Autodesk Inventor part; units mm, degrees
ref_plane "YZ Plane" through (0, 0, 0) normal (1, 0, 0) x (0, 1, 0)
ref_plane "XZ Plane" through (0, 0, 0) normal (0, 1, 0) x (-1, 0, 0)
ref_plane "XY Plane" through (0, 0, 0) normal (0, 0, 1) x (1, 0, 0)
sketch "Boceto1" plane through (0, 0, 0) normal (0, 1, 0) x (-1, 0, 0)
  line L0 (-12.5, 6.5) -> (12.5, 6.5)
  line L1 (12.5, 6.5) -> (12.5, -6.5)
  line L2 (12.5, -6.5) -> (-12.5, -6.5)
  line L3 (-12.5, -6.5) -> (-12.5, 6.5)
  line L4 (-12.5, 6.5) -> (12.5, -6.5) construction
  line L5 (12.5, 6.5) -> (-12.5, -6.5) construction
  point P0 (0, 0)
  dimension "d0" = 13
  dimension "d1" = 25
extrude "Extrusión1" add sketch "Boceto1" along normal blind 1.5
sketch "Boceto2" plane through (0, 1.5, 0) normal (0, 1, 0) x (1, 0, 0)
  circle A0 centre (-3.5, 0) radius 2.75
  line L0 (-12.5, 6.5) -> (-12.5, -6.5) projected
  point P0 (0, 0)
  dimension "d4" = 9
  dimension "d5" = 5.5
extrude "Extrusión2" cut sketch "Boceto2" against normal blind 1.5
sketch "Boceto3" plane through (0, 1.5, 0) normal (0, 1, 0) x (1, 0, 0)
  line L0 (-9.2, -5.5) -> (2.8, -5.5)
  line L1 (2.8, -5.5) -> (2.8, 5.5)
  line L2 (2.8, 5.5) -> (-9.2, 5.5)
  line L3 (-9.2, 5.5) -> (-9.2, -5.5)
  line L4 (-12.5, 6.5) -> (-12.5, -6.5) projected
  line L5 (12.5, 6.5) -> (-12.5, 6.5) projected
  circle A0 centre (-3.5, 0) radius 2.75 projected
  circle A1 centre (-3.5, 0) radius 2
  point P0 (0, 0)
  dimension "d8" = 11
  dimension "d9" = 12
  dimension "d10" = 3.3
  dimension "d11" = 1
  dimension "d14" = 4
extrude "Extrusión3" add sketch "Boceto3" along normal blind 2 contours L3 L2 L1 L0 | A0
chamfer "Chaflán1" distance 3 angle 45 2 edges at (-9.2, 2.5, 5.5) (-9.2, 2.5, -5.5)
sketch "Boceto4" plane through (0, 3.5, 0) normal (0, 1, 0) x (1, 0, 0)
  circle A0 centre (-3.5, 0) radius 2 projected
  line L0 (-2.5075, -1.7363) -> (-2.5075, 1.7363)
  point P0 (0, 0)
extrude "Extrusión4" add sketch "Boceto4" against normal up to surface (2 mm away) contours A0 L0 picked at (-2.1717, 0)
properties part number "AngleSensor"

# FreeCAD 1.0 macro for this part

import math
import FreeCAD as App
import Part
import Sketcher
from FreeCAD import Vector


def edges_at(feature, points):
    """Names of the edges that pass closest to the given points."""
    edges = feature.Shape.Edges
    near = lambda p: min(range(len(edges)), key=lambda i: edges[i].distToShape(Part.Vertex(*p))[0])
    return sorted({f"Edge{near(p) + 1}" for p in points})


def add_polygon(sketch, points):
    """Adds a closed chain of lines whose ends are joined by coincident constraints."""
    first, n = sketch.GeometryCount, len(points)
    for a, b in zip(points, points[1:] + points[:1]):
        sketch.addGeometry(Part.LineSegment(App.Vector(*a, 0), App.Vector(*b, 0)), False)
    for i in range(n):
        sketch.addConstraint(Sketcher.Constraint("Coincident", first + i, 2, first + (i + 1) % n, 1))

doc = App.newDocument("Part")
params = doc.addObject("Spreadsheet::Sheet", "Params")
for row, (alias, value) in enumerate([
    ("sketch1_width", "25 mm"),
    ("sketch1_height", "13 mm"),
    ("pad1_length", "1.5 mm"),
    ("sketch2_diameter", "5.5 mm"),
    ("pocket1_length", "1.5 mm"),
    ("sketch3_diameter", "4 mm"),
    ("sketch3_width", "12 mm"),
    ("sketch3_height", "11 mm"),
    ("pad2_length", "2 mm"),
    ("chamfer_size", "3 mm"),
    ("sketch4_radius", "2 mm"),
    ("pad3_length", "2 mm"),
], start=1):
    params.set(f"A{row}", alias)
    params.set(f"B{row}", "=" + value)
    params.setAlias(f"B{row}", alias)

body = doc.addObject("PartDesign::Body", "Body")

sketch1 = body.newObject("Sketcher::SketchObject", "Sketch")
sketch1.AttachmentSupport = (doc.getObject("XZ_Plane"), [""])
sketch1.MapMode = "FlatFace"
add_polygon(sketch1, [(-12.5, 6.5), (12.5, 6.5), (12.5, -6.5), (-12.5, -6.5)])
sketch1.addConstraint([
    Sketcher.Constraint("Horizontal", 0),
    Sketcher.Constraint("Vertical", 1),
    Sketcher.Constraint("Horizontal", 2),
    Sketcher.Constraint("Vertical", 3),
    Sketcher.Constraint("Symmetric", 0, 2, 2, 2, -1, 1),
    Sketcher.Constraint("DistanceX", 0, 1, 0, 2, 25.0),
    Sketcher.Constraint("DistanceY", 1, 2, 1, 1, 13.0),
])
sketch1.setExpression("Constraints[9]", "Params.sketch1_width")
sketch1.setExpression("Constraints[10]", "Params.sketch1_height")
pad1 = body.newObject("PartDesign::Pad", "Pad")
pad1.Profile = sketch1
pad1.setExpression("Length", "Params.pad1_length")
pad1.Reversed = True

sketch2 = body.newObject("Sketcher::SketchObject", "Sketch001")
sketch2.AttachmentSupport = (doc.getObject("XZ_Plane"), [""])
sketch2.MapMode = "FlatFace"
sketch2.AttachmentOffset = App.Placement(Vector(0, 0, -1.5), App.Rotation())
sketch2.addGeometry(Part.Circle(Vector(-3.5, 0, 0), Vector(0, 0, 1), 2.75), False)
sketch2.addConstraint([
    Sketcher.Constraint("PointOnObject", 0, 3, -1),
    Sketcher.Constraint("Diameter", 0, 5.5),
    Sketcher.Constraint("DistanceX", 0, 3, -1, 1, 3.5),
])
sketch2.setExpression("Constraints[1]", "Params.sketch2_diameter")
pocket1 = body.newObject("PartDesign::Pocket", "Pocket")
pocket1.Profile = sketch2
pocket1.setExpression("Length", "Params.pocket1_length")
pocket1.Reversed = True

sketch3 = body.newObject("Sketcher::SketchObject", "Sketch002")
sketch3.AttachmentSupport = (doc.getObject("XZ_Plane"), [""])
sketch3.MapMode = "FlatFace"
sketch3.AttachmentOffset = App.Placement(Vector(0, 0, -1.5), App.Rotation())
add_polygon(sketch3, [(-9.2, -5.5), (-9.2, 5.5), (2.8, 5.5), (2.8, -5.5)])
sketch3.addGeometry(Part.Circle(Vector(-3.5, 0, 0), Vector(0, 0, 1), 2), False)
sketch3.addConstraint([
    Sketcher.Constraint("Vertical", 0),
    Sketcher.Constraint("Horizontal", 1),
    Sketcher.Constraint("Vertical", 2),
    Sketcher.Constraint("Horizontal", 3),
    Sketcher.Constraint("PointOnObject", 4, 3, -1),
    Sketcher.Constraint("Diameter", 4, 4.0),
    Sketcher.Constraint("DistanceX", 1, 1, 1, 2, 12.0),
    Sketcher.Constraint("DistanceY", 0, 1, 0, 2, 11.0),
    Sketcher.Constraint("DistanceX", 4, 3, -1, 1, 3.5),
    Sketcher.Constraint("DistanceX", 0, 2, -1, 1, 9.2),
    Sketcher.Constraint("DistanceY", -1, 1, 0, 2, 5.5),
])
sketch3.setExpression("Constraints[9]", "Params.sketch3_diameter")
sketch3.setExpression("Constraints[10]", "Params.sketch3_width")
sketch3.setExpression("Constraints[11]", "Params.sketch3_height")
pad2 = body.newObject("PartDesign::Pad", "Pad001")
pad2.Profile = sketch3
pad2.setExpression("Length", "Params.pad2_length")
pad2.Reversed = True
doc.recompute()

chamfer = body.newObject("PartDesign::Chamfer", "Chamfer")
chamfer.Base = (pad2, edges_at(pad2, [(-9.2, 2.5, 5.5), (-9.2, 2.5, -5.5)]))
chamfer.setExpression("Size", "Params.chamfer_size")

sketch4 = body.newObject("Sketcher::SketchObject", "Sketch003")
sketch4.AttachmentSupport = (doc.getObject("XZ_Plane"), [""])
sketch4.MapMode = "FlatFace"
sketch4.AttachmentOffset = App.Placement(Vector(0, 0, -3.5), App.Rotation())
sketch4.addGeometry([
    Part.ArcOfCircle(Part.Circle(Vector(-3.5, 0, 0), Vector(0, 0, 1), 2), math.radians(-60.246946), math.radians(60.246946)),
    Part.LineSegment(Vector(-2.5075, 1.7363, 0), Vector(-2.5075, -1.7363, 0)),
], False)
sketch4.addConstraint([
    Sketcher.Constraint("Coincident", 0, 1, 1, 2),
    Sketcher.Constraint("Coincident", 1, 1, 0, 2),
    Sketcher.Constraint("Vertical", 1),
    Sketcher.Constraint("PointOnObject", 0, 3, -1),
    Sketcher.Constraint("Radius", 0, 2.0),
    Sketcher.Constraint("DistanceX", 0, 3, -1, 1, 3.5),
    Sketcher.Constraint("DistanceY", 1, 2, 1, 1, 3.4726),
])
sketch4.setExpression("Constraints[4]", "Params.sketch4_radius")
pad3 = body.newObject("PartDesign::Pad", "Pad002")
pad3.Profile = sketch4
pad3.setExpression("Length", "Params.pad3_length")

doc.recompute()
